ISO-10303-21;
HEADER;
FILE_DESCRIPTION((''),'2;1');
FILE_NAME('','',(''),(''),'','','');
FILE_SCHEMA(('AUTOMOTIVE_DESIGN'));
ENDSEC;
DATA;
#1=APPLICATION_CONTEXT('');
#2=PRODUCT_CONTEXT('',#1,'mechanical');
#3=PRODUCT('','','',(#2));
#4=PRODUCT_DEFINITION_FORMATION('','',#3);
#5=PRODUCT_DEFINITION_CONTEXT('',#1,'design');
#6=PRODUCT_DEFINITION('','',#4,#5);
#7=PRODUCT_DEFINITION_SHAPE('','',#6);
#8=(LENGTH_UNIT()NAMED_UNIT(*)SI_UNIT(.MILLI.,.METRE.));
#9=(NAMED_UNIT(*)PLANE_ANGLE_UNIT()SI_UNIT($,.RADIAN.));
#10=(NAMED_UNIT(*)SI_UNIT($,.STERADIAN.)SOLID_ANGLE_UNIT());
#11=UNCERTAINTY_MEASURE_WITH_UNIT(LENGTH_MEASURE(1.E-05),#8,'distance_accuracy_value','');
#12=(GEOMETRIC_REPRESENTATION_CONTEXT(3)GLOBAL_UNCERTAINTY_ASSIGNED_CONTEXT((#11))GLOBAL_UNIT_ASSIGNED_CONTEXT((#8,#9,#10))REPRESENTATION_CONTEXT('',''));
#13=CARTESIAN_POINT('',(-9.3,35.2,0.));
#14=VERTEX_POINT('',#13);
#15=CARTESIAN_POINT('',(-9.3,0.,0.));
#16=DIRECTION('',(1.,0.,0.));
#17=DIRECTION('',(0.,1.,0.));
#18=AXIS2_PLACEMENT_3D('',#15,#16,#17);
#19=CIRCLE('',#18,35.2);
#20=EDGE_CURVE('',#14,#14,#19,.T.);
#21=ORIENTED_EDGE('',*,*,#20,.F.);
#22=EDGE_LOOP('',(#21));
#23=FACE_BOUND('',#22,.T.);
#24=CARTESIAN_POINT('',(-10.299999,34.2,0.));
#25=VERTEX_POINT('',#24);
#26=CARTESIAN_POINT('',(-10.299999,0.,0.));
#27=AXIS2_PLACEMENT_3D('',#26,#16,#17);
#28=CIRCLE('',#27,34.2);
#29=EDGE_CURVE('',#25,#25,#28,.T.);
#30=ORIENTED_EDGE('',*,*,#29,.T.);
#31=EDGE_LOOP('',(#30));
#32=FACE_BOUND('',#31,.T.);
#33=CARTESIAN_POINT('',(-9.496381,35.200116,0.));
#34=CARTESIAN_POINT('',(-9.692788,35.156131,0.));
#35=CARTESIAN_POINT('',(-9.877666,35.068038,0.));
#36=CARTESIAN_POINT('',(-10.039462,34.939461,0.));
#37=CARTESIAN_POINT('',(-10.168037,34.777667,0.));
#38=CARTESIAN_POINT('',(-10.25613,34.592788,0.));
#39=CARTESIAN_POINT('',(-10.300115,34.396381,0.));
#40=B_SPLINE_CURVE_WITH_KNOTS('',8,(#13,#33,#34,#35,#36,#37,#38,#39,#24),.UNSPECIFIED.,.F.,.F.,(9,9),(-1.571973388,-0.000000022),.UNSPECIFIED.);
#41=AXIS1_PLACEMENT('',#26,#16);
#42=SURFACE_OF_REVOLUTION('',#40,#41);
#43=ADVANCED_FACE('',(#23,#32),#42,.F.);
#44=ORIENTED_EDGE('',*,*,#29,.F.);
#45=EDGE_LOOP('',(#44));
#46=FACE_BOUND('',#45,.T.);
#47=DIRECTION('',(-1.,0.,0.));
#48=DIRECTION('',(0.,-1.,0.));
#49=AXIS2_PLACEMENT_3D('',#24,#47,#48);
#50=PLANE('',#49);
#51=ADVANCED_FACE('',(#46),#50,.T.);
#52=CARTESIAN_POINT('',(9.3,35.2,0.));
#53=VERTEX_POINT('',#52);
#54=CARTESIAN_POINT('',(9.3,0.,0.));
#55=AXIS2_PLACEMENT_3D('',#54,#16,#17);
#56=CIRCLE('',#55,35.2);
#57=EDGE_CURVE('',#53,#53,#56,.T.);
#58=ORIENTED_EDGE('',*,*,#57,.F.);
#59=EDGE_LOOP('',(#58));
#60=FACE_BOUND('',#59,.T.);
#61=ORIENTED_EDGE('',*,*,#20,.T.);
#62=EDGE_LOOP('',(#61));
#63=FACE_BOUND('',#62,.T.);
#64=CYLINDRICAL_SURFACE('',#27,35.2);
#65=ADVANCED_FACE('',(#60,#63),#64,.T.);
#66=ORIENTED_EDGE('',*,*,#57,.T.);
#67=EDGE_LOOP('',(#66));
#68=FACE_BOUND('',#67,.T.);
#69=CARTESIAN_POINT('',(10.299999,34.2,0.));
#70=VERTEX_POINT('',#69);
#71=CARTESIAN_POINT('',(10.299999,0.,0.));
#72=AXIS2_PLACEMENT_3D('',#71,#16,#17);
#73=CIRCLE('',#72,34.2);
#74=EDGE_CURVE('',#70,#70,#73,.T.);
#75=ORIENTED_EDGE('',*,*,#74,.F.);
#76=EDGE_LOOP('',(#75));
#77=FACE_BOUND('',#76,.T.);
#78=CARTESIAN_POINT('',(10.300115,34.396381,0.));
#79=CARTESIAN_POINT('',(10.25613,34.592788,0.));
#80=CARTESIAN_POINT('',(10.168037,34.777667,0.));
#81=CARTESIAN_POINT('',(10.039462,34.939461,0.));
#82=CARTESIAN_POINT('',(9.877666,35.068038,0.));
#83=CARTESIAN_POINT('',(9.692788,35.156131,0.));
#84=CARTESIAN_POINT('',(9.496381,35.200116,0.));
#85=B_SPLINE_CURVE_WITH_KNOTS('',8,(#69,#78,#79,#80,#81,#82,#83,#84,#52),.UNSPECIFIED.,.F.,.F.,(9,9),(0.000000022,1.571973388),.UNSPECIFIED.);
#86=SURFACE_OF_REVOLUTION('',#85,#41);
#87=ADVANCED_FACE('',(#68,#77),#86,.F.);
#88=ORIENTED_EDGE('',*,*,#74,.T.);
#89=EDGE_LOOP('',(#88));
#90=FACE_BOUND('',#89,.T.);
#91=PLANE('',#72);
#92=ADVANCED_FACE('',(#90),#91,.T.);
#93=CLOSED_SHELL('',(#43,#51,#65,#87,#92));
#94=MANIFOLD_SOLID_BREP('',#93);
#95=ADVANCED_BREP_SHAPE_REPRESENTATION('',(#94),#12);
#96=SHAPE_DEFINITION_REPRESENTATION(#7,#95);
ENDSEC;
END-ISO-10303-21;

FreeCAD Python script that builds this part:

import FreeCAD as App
import Part
import Sketcher

V = App.Vector

doc = App.newDocument("Part")
body = doc.addObject("PartDesign::Body", "Body")

# Sketch on XY plane
sketch1 = doc.addObject("Sketcher::SketchObject", "Sketch")
body.addObject(sketch1)
sketch1.AttachmentSupport = (doc.XY_Plane, [""])
sketch1.MapMode = "FlatFace"
sketch1.addGeometry([
    Part.LineSegment(V(-10.299999, 34.2, 0), V(-10.299999, 0, 0)),  # 0
    Part.LineSegment(V(-10.299999, 0, 0), V(10.299999, 0, 0)),  # 1
    Part.LineSegment(V(10.299999, 0, 0), V(10.299999, 34.2, 0)),  # 2
    Part.BSplineCurve([V(9.3, 35.2, 0), V(9.496381, 35.200116, 0), V(9.692788, 35.156131, 0), V(9.877666, 35.068038, 0), V(10.039462, 34.939461, 0), V(10.168037, 34.777667, 0), V(10.25613, 34.592788, 0), V(10.300115, 34.396381, 0), V(10.299999, 34.2, 0)], [9, 9], [0.000000022, 1.571973388], False, 8, [1, 1, 1, 1, 1, 1, 1, 1, 1], False),  # 3
    Part.LineSegment(V(9.3, 35.2, 0), V(-9.3, 35.2, 0)),  # 4
    Part.BSplineCurve([V(-10.299999, 34.2, 0), V(-10.300115, 34.396381, 0), V(-10.25613, 34.592788, 0), V(-10.168037, 34.777667, 0), V(-10.039462, 34.939461, 0), V(-9.877666, 35.068038, 0), V(-9.692788, 35.156131, 0), V(-9.496381, 35.200116, 0), V(-9.3, 35.2, 0)], [9, 9], [-1.571973388, -0.000000022], False, 8, [1, 1, 1, 1, 1, 1, 1, 1, 1], False),  # 5
], False)
sketch1.addConstraint([
    Sketcher.Constraint("Block", 3),
    Sketcher.Constraint("Block", 5),
    Sketcher.Constraint("Coincident", 0, 2, 1, 1),
    Sketcher.Constraint("Coincident", 1, 2, 2, 1),
    Sketcher.Constraint("Coincident", 2, 2, 3, 2),
    Sketcher.Constraint("Coincident", 3, 1, 4, 1),
    Sketcher.Constraint("Coincident", 4, 2, 5, 2),
    Sketcher.Constraint("Coincident", 5, 1, 0, 1),
    Sketcher.Constraint("Vertical", 0),
    Sketcher.Constraint("Horizontal", 1),
    Sketcher.Constraint("Vertical", 2),
    Sketcher.Constraint("PointOnObject", 0, 2, -1),
])
revolution = doc.addObject("PartDesign::Revolution", "Revolution")
body.addObject(revolution)
revolution.Profile = sketch1
revolution.ReferenceAxis = (sketch1, ["H_Axis"])
revolution.Angle = 360

doc.recompute()
